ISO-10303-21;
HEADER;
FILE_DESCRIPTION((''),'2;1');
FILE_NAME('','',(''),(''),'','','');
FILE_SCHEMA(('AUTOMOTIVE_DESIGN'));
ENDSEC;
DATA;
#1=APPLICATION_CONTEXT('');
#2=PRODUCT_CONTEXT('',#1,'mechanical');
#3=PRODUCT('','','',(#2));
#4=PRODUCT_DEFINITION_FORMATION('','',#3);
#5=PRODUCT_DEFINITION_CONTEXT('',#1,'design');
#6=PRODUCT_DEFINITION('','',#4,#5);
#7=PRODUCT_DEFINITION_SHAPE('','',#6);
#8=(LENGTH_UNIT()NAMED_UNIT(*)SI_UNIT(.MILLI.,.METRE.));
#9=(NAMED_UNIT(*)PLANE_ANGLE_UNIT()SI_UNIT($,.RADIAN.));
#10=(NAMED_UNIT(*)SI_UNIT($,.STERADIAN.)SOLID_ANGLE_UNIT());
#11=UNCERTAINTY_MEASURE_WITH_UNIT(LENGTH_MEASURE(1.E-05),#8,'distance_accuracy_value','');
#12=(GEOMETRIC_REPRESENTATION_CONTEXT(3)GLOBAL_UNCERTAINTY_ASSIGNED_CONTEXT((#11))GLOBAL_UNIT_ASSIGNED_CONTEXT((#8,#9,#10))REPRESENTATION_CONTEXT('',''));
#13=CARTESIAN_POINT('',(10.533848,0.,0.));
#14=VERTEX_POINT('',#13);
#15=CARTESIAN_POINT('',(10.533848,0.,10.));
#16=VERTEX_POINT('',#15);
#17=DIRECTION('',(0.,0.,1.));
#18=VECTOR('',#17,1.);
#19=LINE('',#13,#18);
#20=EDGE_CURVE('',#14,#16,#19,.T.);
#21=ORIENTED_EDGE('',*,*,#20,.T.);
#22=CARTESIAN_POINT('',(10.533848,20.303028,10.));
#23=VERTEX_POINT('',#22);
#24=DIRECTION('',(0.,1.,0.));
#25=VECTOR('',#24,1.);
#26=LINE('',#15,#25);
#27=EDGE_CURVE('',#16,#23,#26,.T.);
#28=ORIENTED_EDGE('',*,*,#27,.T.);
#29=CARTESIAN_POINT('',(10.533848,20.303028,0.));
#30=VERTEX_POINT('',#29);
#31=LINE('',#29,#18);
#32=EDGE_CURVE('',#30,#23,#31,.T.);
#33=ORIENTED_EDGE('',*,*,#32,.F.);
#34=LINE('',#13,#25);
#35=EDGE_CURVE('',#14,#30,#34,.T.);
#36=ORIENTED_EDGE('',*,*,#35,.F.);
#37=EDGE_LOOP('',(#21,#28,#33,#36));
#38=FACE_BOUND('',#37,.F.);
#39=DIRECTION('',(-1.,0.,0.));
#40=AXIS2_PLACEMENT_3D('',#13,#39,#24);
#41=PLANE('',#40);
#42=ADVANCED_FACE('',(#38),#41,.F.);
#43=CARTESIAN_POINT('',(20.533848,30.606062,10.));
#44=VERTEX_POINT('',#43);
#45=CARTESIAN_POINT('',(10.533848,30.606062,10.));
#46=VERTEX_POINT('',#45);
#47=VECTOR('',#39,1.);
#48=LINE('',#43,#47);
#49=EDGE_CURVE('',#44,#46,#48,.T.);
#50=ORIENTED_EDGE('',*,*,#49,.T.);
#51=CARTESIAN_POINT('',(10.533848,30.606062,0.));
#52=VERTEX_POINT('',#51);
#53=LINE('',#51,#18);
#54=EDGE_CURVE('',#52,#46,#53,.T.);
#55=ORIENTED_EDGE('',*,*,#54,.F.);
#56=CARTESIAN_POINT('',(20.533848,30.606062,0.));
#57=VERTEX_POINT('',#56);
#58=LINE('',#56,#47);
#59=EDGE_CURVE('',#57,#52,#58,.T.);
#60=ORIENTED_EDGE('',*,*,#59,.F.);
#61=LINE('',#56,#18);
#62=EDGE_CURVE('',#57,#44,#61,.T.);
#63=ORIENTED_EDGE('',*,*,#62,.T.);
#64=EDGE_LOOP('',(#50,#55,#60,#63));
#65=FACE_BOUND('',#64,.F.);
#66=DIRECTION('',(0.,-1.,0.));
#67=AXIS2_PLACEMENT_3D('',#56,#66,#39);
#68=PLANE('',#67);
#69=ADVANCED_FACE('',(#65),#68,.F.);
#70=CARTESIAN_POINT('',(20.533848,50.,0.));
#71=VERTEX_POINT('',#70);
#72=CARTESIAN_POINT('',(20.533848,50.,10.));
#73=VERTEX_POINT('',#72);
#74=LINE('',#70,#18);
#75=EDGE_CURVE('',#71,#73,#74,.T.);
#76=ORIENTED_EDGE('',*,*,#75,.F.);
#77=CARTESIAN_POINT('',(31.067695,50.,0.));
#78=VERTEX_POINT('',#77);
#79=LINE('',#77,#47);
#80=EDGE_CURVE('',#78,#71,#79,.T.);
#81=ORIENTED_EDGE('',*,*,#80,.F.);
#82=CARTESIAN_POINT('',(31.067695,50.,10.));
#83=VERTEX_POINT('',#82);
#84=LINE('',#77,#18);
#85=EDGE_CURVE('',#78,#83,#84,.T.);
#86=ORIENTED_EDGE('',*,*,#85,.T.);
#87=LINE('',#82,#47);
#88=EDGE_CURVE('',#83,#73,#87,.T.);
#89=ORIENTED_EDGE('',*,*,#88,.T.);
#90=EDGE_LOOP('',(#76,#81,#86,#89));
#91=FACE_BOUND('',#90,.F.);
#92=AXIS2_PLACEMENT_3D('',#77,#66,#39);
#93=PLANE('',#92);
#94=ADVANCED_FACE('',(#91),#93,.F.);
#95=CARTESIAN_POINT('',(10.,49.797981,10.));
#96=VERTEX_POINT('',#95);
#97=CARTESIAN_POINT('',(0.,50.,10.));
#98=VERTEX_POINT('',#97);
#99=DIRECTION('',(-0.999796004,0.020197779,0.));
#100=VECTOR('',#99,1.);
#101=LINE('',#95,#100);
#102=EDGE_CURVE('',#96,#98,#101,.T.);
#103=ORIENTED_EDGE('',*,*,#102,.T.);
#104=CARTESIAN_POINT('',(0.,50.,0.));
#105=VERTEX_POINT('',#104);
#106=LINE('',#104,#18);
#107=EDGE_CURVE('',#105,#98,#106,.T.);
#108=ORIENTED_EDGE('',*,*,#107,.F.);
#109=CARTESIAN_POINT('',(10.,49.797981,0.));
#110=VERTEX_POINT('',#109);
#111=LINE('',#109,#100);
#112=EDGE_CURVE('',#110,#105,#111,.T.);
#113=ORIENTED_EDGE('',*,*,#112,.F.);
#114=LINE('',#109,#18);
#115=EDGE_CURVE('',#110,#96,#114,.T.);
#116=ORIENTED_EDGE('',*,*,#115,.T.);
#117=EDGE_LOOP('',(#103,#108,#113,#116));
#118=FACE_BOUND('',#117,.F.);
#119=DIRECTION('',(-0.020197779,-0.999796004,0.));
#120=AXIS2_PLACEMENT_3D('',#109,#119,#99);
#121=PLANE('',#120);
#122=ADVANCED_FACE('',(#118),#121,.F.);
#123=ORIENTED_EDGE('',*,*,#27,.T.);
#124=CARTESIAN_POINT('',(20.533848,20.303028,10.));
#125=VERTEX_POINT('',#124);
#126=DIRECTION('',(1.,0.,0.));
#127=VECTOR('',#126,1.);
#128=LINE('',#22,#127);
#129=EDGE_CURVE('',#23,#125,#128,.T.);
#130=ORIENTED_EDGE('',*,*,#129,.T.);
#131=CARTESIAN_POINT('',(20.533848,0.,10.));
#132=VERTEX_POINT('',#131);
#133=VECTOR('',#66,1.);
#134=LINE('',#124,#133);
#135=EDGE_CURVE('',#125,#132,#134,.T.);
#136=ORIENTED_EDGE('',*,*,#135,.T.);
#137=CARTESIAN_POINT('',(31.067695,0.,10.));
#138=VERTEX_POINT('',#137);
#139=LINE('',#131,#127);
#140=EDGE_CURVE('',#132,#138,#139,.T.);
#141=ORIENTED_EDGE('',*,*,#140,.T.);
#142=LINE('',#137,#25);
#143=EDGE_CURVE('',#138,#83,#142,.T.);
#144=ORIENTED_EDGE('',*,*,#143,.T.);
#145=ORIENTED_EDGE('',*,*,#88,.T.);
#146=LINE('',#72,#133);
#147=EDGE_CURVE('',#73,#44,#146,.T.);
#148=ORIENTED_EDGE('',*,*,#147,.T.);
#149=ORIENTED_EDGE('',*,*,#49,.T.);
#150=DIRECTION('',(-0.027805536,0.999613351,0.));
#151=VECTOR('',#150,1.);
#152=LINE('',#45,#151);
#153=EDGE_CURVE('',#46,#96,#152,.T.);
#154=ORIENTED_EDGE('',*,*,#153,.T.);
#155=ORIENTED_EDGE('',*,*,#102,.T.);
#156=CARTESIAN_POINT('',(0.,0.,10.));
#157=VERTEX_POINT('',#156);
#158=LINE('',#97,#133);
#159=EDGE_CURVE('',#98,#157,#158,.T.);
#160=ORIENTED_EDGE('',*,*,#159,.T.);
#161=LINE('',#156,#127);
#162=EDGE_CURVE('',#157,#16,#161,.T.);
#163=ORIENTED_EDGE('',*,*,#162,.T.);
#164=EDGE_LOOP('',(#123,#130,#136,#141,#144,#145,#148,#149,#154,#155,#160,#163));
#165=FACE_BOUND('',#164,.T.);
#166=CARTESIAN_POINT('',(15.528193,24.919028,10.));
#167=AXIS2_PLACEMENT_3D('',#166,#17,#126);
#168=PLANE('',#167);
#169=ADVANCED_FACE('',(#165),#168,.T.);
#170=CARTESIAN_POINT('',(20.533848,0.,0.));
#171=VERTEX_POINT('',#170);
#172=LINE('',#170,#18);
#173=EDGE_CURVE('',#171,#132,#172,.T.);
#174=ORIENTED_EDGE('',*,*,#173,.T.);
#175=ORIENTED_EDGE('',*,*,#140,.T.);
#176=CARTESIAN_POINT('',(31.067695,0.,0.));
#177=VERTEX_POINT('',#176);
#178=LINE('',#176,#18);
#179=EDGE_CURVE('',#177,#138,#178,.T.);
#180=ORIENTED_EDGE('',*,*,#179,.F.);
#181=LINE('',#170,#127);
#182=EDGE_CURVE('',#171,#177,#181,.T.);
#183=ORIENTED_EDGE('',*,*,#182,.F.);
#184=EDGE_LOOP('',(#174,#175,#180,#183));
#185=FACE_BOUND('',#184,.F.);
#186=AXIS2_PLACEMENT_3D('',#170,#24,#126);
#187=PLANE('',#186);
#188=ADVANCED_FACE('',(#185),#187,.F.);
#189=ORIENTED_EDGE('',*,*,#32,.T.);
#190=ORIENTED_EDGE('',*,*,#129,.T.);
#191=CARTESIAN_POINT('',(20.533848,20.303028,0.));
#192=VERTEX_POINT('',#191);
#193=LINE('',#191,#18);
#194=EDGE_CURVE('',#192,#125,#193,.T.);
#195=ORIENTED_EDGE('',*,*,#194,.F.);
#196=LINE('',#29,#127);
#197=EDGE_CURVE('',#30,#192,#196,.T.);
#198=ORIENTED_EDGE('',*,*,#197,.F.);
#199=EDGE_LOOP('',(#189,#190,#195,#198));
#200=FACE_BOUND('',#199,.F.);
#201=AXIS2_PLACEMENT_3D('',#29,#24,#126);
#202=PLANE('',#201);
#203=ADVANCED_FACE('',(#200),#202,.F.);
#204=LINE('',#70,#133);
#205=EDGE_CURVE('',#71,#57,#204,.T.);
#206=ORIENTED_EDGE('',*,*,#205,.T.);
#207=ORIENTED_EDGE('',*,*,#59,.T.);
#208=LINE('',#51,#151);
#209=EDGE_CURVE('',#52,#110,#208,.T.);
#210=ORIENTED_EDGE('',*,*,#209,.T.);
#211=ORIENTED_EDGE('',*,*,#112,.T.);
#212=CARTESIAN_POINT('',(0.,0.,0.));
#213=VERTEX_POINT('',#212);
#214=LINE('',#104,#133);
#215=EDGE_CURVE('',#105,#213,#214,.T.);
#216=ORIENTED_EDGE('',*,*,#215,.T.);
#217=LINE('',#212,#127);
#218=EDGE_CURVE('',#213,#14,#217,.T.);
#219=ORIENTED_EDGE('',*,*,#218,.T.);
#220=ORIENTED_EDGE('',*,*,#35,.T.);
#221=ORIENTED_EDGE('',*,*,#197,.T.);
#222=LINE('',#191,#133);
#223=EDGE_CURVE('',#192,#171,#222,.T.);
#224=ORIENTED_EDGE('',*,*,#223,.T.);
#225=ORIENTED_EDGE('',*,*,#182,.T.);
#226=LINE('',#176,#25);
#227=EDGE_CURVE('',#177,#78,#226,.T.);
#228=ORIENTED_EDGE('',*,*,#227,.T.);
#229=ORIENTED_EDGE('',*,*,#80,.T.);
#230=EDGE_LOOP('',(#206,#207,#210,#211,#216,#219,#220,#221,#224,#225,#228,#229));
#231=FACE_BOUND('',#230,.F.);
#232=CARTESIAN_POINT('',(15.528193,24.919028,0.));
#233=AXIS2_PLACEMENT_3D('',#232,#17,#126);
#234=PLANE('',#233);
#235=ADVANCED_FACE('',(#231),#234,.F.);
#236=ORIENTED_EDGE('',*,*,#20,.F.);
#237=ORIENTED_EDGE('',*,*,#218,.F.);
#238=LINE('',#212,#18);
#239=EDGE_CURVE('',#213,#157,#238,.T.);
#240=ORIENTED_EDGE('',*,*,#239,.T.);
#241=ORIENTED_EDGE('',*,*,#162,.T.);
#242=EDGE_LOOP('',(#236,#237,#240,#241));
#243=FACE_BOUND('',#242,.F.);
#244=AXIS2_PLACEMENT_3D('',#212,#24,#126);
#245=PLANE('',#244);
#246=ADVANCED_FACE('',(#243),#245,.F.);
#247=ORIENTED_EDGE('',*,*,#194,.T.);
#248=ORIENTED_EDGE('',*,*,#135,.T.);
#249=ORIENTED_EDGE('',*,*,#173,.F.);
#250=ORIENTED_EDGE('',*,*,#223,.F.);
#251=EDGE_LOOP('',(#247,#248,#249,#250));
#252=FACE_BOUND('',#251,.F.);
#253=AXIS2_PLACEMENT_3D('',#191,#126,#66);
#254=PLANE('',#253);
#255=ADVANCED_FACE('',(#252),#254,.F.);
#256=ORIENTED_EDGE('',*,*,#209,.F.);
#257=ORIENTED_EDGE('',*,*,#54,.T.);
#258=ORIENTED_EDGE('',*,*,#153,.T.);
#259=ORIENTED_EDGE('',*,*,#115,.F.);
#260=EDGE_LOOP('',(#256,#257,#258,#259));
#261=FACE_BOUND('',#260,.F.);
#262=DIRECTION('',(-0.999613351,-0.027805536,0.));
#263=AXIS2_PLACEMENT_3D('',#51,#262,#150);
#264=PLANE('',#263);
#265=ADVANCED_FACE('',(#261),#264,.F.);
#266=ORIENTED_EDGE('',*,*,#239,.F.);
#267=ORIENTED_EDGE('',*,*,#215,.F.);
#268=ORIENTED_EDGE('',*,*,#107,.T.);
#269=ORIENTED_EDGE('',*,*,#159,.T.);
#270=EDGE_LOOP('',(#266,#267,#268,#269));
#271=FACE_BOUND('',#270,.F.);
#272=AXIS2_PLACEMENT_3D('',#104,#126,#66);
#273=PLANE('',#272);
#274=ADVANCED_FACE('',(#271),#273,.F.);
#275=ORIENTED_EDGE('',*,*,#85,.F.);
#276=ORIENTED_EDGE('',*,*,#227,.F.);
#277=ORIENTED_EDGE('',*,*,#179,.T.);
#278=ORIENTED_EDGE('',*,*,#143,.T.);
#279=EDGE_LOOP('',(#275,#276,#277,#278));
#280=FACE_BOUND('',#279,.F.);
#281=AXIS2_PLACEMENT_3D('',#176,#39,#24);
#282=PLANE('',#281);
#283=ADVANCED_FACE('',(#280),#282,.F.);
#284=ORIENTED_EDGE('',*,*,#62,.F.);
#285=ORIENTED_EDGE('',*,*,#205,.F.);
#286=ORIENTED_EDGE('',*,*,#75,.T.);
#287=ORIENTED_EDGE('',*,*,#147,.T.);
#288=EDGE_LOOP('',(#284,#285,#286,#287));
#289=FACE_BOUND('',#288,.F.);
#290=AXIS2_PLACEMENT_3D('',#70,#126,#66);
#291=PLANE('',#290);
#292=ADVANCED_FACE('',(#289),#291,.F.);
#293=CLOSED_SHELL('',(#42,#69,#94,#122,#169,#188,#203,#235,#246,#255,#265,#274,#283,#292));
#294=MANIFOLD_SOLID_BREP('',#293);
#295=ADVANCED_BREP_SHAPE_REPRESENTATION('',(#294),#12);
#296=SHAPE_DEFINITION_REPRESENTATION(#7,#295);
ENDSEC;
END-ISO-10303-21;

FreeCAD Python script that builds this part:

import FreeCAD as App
import Part
import Sketcher

V = App.Vector

doc = App.newDocument("Part")
params = doc.addObject("Spreadsheet::Sheet", "Params")
for row, (alias, value) in enumerate([
    ("sketch1_width", "10 mm"),
    ("sketch1_height", "50 mm"),
    ("pad1_length", "10 mm"),
], start=1):
    params.set(f"A{row}", alias)
    params.set(f"B{row}", "=" + value)
    params.setAlias(f"B{row}", alias)

body = doc.addObject("PartDesign::Body", "Body")

# Sketch on XY plane
sketch1 = body.newObject("Sketcher::SketchObject", "Sketch")
sketch1.AttachmentSupport = (doc.getObject("XY_Plane"), [""])
sketch1.MapMode = "FlatFace"
sketch1.addGeometry(Part.LineSegment(V(0, 50, 0), V(0, 0, 0)), False)
sketch1.addGeometry(Part.LineSegment(V(0, 0, 0), V(10.533848, 0, 0)), False)
sketch1.addGeometry(Part.LineSegment(V(10.533848, 0, 0), V(10.533848, 20.303028, 0)), False)
sketch1.addGeometry(Part.LineSegment(V(10.533848, 20.303028, 0), V(20.533848, 20.303028, 0)), False)
sketch1.addGeometry(Part.LineSegment(V(20.533848, 20.303028, 0), V(20.533848, 0, 0)), False)
sketch1.addGeometry(Part.LineSegment(V(20.533848, 0, 0), V(31.067695, 0, 0)), False)
sketch1.addGeometry(Part.LineSegment(V(31.067695, 0, 0), V(31.067695, 50, 0)), False)
sketch1.addGeometry(Part.LineSegment(V(31.067695, 50, 0), V(20.533848, 50, 0)), False)
sketch1.addGeometry(Part.LineSegment(V(20.533848, 50, 0), V(20.533848, 30.606062, 0)), False)
sketch1.addGeometry(Part.LineSegment(V(20.533848, 30.606062, 0), V(10.533848, 30.606062, 0)), False)
sketch1.addGeometry(Part.LineSegment(V(10.533848, 30.606062, 0), V(10, 49.797981, 0)), False)
sketch1.addGeometry(Part.LineSegment(V(10, 49.797981, 0), V(0, 50, 0)), False)
sketch1.addConstraint(Sketcher.Constraint("Coincident", 0, 2, 1, 1))
sketch1.addConstraint(Sketcher.Constraint("Coincident", 1, 2, 2, 1))
sketch1.addConstraint(Sketcher.Constraint("Coincident", 2, 2, 3, 1))
sketch1.addConstraint(Sketcher.Constraint("Coincident", 3, 2, 4, 1))
sketch1.addConstraint(Sketcher.Constraint("Coincident", 4, 2, 5, 1))
sketch1.addConstraint(Sketcher.Constraint("Coincident", 5, 2, 6, 1))
sketch1.addConstraint(Sketcher.Constraint("Coincident", 6, 2, 7, 1))
sketch1.addConstraint(Sketcher.Constraint("Coincident", 7, 2, 8, 1))
sketch1.addConstraint(Sketcher.Constraint("Coincident", 8, 2, 9, 1))
sketch1.addConstraint(Sketcher.Constraint("Coincident", 9, 2, 10, 1))
sketch1.addConstraint(Sketcher.Constraint("Coincident", 10, 2, 11, 1))
sketch1.addConstraint(Sketcher.Constraint("Coincident", 11, 2, 0, 1))
sketch1.addConstraint(Sketcher.Constraint("Vertical", 0))
sketch1.addConstraint(Sketcher.Constraint("Horizontal", 1))
sketch1.addConstraint(Sketcher.Constraint("Vertical", 2))
sketch1.addConstraint(Sketcher.Constraint("Horizontal", 3))
sketch1.addConstraint(Sketcher.Constraint("Vertical", 4))
sketch1.addConstraint(Sketcher.Constraint("Horizontal", 5))
sketch1.addConstraint(Sketcher.Constraint("Vertical", 6))
sketch1.addConstraint(Sketcher.Constraint("Horizontal", 7))
sketch1.addConstraint(Sketcher.Constraint("Vertical", 8))
sketch1.addConstraint(Sketcher.Constraint("Horizontal", 9))
sketch1.addConstraint(Sketcher.Constraint("Coincident", 0, 2, -1, 1))
sketch1.addConstraint(Sketcher.Constraint("PointOnObject", 4, 2, -1))
sketch1.addConstraint(Sketcher.Constraint("Horizontal", 7, 2, 11, 2))
sketch1.addConstraint(Sketcher.Constraint("Vertical", 4, 2, 7, 2))
sketch1.addConstraint(Sketcher.Constraint("Vertical", 2, 2, 9, 2))
sketch1.addConstraint(Sketcher.Constraint("Equal", 1, 5))
sketch1.addConstraint(Sketcher.Constraint("DistanceX", 3, 1, 3, 2, 10.0))
sketch1.addConstraint(Sketcher.Constraint("DistanceY", 0, 2, 0, 1, 50.0))
sketch1.addConstraint(Sketcher.Constraint("DistanceX", -1, 1, 10, 2, 10.0))
sketch1.addConstraint(Sketcher.Constraint("DistanceX", 1, 1, 1, 2, 10.533848))
sketch1.addConstraint(Sketcher.Constraint("DistanceY", 2, 1, 2, 2, 20.303028))
sketch1.addConstraint(Sketcher.Constraint("Distance", 11, 10.00204))
sketch1.addConstraint(Sketcher.Constraint("DistanceY", 8, 2, 8, 1, 19.393938))
sketch1.setExpression("Constraints[28]", "Params.sketch1_width")
sketch1.setExpression("Constraints[29]", "Params.sketch1_height")
pad1 = body.newObject("PartDesign::Pad", "Pad")
pad1.Profile = sketch1
pad1.setExpression("Length", "Params.pad1_length")

doc.recompute()
